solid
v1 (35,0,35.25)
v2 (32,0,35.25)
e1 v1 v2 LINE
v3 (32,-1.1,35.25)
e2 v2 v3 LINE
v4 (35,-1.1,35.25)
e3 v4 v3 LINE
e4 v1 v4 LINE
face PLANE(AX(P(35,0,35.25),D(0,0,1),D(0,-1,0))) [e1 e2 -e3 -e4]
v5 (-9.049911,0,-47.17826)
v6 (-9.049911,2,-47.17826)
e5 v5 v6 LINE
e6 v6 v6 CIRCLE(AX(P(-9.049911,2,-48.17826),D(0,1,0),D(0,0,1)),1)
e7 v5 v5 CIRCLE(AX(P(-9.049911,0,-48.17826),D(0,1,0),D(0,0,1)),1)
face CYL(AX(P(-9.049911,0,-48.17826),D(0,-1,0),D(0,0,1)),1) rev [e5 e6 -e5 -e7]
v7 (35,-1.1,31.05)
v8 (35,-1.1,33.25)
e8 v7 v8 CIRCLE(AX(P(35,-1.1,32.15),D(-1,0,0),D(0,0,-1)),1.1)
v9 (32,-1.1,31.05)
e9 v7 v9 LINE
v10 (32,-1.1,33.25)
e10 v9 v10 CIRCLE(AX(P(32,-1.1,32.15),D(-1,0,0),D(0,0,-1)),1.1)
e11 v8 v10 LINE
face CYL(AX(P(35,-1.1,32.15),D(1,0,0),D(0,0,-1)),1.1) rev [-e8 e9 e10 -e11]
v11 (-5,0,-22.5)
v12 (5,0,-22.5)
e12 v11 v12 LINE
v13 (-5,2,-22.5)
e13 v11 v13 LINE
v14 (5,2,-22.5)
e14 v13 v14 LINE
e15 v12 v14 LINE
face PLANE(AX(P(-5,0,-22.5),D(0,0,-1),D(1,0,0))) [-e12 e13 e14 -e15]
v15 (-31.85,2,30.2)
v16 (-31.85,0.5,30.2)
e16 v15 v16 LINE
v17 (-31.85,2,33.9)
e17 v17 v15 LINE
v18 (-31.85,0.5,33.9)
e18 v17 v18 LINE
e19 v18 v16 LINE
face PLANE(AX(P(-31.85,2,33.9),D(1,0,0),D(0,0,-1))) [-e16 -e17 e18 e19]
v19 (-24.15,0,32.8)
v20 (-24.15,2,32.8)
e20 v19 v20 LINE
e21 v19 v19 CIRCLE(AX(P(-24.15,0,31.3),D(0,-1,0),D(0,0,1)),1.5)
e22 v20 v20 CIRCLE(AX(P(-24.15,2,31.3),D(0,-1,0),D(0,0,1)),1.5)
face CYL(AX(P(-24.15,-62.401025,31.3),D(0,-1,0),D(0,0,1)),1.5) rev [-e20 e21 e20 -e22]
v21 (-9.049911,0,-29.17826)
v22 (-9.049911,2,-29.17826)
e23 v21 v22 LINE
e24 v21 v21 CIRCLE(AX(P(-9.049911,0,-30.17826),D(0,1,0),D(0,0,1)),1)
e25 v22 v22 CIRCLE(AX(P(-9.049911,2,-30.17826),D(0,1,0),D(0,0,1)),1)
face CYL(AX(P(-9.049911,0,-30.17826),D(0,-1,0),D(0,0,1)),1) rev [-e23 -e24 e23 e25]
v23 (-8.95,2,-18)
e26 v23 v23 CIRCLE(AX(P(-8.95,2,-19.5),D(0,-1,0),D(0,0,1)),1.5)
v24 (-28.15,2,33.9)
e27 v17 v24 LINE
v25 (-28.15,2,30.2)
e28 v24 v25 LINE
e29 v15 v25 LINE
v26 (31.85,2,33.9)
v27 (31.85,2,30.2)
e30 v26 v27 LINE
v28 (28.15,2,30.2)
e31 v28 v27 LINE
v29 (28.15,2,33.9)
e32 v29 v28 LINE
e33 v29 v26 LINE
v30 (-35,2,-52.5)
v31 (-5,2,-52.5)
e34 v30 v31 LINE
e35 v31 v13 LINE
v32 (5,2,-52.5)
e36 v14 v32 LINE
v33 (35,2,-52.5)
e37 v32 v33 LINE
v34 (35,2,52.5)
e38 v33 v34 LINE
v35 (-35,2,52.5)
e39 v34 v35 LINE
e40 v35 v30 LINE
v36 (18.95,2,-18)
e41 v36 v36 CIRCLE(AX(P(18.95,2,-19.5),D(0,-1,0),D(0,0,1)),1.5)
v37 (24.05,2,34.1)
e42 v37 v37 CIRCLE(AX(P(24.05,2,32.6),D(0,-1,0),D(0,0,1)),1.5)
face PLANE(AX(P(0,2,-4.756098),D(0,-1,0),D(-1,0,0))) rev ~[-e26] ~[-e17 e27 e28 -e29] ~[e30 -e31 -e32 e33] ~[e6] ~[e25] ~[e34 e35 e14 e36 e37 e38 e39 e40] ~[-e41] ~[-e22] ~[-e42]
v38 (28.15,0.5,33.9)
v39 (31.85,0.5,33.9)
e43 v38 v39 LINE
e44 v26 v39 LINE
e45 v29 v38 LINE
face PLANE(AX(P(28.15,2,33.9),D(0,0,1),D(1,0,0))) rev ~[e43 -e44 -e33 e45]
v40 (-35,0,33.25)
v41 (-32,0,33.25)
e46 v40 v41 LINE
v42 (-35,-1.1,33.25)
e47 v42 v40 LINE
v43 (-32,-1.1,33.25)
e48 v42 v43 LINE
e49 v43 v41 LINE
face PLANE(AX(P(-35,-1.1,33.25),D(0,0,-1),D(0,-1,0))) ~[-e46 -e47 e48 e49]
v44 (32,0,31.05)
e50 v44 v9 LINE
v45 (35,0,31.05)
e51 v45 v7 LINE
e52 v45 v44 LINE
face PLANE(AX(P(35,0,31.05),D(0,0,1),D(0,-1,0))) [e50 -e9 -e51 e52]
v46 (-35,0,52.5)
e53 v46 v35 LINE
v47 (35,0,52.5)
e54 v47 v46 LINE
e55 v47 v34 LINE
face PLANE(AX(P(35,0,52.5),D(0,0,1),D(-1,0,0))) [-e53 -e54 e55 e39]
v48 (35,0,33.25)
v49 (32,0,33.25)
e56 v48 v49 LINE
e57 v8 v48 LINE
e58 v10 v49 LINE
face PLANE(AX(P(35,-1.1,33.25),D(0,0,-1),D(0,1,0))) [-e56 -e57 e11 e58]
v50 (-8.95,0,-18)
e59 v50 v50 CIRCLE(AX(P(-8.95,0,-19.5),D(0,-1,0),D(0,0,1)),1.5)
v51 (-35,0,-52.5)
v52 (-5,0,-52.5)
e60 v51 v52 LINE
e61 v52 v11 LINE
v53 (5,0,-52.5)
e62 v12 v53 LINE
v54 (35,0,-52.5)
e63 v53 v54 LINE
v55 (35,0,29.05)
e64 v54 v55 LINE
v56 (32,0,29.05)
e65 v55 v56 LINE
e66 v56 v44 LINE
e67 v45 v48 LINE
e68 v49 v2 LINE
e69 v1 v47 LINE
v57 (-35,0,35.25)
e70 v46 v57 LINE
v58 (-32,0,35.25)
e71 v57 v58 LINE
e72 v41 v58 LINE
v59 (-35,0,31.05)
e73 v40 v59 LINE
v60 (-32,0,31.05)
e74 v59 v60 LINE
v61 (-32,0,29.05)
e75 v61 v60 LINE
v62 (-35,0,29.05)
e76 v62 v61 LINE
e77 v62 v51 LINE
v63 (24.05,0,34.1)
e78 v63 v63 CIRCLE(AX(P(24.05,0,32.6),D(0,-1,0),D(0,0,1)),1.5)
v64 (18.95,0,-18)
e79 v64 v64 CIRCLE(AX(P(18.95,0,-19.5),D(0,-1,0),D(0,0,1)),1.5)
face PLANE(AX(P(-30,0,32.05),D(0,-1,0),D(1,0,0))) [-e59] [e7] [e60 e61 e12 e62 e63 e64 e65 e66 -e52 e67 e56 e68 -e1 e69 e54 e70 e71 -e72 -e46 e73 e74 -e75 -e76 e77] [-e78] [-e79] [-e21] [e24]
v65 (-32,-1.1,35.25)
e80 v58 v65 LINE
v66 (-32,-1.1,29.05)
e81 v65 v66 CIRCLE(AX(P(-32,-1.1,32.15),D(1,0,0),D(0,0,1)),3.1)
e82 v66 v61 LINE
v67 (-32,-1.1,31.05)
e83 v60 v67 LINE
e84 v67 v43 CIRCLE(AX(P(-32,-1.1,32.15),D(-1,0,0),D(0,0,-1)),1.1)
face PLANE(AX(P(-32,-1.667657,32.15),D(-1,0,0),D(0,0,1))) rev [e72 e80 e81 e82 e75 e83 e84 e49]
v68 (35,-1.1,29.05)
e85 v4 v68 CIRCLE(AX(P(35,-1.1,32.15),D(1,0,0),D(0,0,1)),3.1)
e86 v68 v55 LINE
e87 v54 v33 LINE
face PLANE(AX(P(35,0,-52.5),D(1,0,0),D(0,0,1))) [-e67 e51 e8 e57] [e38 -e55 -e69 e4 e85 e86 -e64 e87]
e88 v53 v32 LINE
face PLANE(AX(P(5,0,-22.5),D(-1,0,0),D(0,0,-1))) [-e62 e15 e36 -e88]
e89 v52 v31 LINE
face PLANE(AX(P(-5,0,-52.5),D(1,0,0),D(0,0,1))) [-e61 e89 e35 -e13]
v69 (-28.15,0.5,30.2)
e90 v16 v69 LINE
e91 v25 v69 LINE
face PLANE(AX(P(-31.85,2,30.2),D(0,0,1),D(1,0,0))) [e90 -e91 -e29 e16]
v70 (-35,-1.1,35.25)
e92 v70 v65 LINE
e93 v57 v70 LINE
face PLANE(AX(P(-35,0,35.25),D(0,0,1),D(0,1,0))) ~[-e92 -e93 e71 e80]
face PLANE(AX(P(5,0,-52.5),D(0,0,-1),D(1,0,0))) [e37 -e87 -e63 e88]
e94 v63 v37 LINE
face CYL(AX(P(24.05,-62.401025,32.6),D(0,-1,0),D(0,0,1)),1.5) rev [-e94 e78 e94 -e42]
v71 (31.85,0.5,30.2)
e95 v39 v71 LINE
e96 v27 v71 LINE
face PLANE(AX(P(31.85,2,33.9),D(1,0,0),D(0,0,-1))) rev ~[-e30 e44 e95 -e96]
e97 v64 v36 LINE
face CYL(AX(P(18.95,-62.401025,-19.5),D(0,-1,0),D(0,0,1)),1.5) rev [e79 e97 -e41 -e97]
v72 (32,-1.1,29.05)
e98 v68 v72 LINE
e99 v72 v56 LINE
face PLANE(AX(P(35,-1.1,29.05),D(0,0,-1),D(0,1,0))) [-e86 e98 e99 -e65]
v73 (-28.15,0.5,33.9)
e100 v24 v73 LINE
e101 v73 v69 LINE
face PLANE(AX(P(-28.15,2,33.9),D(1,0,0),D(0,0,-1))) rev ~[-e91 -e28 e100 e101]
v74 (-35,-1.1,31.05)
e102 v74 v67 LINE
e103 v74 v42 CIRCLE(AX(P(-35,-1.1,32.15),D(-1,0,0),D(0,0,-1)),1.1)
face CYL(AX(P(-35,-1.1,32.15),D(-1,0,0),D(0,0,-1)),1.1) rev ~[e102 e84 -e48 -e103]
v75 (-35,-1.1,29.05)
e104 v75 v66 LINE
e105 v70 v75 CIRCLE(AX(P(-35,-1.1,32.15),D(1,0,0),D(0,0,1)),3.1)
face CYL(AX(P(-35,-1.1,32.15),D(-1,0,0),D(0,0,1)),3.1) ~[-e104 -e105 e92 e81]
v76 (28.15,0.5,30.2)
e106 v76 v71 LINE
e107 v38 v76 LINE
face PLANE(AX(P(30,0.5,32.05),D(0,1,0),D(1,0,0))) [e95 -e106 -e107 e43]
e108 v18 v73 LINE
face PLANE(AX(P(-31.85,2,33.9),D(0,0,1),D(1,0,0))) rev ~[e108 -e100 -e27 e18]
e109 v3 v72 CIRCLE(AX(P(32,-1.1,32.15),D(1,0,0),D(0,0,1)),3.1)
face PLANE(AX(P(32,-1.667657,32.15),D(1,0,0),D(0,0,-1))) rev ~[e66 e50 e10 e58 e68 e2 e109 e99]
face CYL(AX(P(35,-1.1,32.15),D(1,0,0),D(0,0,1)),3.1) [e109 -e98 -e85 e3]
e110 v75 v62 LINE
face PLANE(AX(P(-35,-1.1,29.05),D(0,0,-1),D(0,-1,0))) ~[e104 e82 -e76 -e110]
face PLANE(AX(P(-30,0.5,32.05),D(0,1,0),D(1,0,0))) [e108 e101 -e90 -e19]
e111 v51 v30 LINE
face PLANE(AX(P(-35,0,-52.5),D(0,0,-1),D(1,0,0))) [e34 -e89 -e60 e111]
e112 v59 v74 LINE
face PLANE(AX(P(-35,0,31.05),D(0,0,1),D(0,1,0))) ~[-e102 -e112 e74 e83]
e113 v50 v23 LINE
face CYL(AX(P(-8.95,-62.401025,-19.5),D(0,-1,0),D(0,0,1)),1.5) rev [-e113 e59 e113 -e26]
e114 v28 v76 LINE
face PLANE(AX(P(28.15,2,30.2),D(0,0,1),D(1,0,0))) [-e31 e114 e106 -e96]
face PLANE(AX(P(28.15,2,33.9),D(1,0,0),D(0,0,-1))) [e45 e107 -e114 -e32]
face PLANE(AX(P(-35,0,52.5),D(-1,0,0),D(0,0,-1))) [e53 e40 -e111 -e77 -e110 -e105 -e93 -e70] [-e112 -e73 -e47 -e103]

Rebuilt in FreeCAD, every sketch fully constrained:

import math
import FreeCAD as App
import Part
import Sketcher

V = App.Vector

doc = App.newDocument("Part")
params = doc.addObject("Spreadsheet::Sheet", "Params")
for row, (alias, value) in enumerate([
    ("sketch1_diameter", "2 mm"),
    ("sketch1_width", "30 mm"),
    ("sketch1_width2", "70 mm"),
    ("sketch1_height", "105 mm"),
    ("sketch1_width3", "3.1 mm"),
    ("pad1_length", "2 mm"),
    ("sketch2_radius", "3.1 mm"),
    ("sketch2_radius2", "1.1 mm"),
    ("sketch2_width", "1.1 mm"),
    ("pad2_length", "3 mm"),
    ("sketch3_width", "3.1 mm"),
    ("pad3_length", "0.5 mm"),
    ("sketch4_width", "3.7 mm"),
    ("pocket1_length", "1.5 mm"),
    ("sketch5_diameter", "3 mm"),
], start=1):
    params.set(f"A{row}", alias)
    params.set(f"B{row}", "=" + value)
    params.setAlias(f"B{row}", alias)

body = doc.addObject("PartDesign::Body", "Body")

sketch1 = body.newObject("Sketcher::SketchObject", "Sketch")
sketch1.AttachmentSupport = (doc.getObject("XZ_Plane"), [""])
sketch1.MapMode = "FlatFace"
sketch1.addGeometry(Part.LineSegment(V(-5, -22.5, 0), V(-5, -52.5, 0)), False)
sketch1.addGeometry(Part.LineSegment(V(-5, -52.5, 0), V(-35, -52.5, 0)), False)
sketch1.addGeometry(Part.LineSegment(V(-35, -52.5, 0), V(-35, 52.5, 0)), False)
sketch1.addGeometry(Part.LineSegment(V(-35, 52.5, 0), V(35, 52.5, 0)), False)
sketch1.addGeometry(Part.LineSegment(V(35, 52.5, 0), V(35, -52.5, 0)), False)
sketch1.addGeometry(Part.LineSegment(V(35, -52.5, 0), V(5, -52.5, 0)), False)
sketch1.addGeometry(Part.LineSegment(V(5, -52.5, 0), V(5, -22.5, 0)), False)
sketch1.addGeometry(Part.LineSegment(V(5, -22.5, 0), V(-5, -22.5, 0)), False)
sketch1.addGeometry(Part.LineSegment(V(28.4, 33.6, 0), V(28.4, 30.5, 0)), False)
sketch1.addGeometry(Part.LineSegment(V(28.4, 30.5, 0), V(31.6, 30.5, 0)), False)
sketch1.addGeometry(Part.LineSegment(V(31.6, 30.5, 0), V(31.6, 33.6, 0)), False)
sketch1.addGeometry(Part.LineSegment(V(31.6, 33.6, 0), V(28.4, 33.6, 0)), False)
sketch1.addGeometry(Part.LineSegment(V(-31.6, 33.6, 0), V(-31.6, 30.5, 0)), False)
sketch1.addGeometry(Part.LineSegment(V(-31.6, 30.5, 0), V(-28.4, 30.5, 0)), False)
sketch1.addGeometry(Part.LineSegment(V(-28.4, 30.5, 0), V(-28.4, 33.6, 0)), False)
sketch1.addGeometry(Part.LineSegment(V(-28.4, 33.6, 0), V(-31.6, 33.6, 0)), False)
sketch1.addGeometry(Part.Circle(V(-9, -30.2, 0), V(0, 0, 1), 1), False)
sketch1.addGeometry(Part.Circle(V(-9, -48.2, 0), V(0, 0, 1), 1), False)
sketch1.addConstraint(Sketcher.Constraint("Coincident", 0, 2, 1, 1))
sketch1.addConstraint(Sketcher.Constraint("Coincident", 1, 2, 2, 1))
sketch1.addConstraint(Sketcher.Constraint("Coincident", 2, 2, 3, 1))
sketch1.addConstraint(Sketcher.Constraint("Coincident", 3, 2, 4, 1))
sketch1.addConstraint(Sketcher.Constraint("Coincident", 4, 2, 5, 1))
sketch1.addConstraint(Sketcher.Constraint("Coincident", 5, 2, 6, 1))
sketch1.addConstraint(Sketcher.Constraint("Coincident", 6, 2, 7, 1))
sketch1.addConstraint(Sketcher.Constraint("Coincident", 7, 2, 0, 1))
sketch1.addConstraint(Sketcher.Constraint("Coincident", 8, 2, 9, 1))
sketch1.addConstraint(Sketcher.Constraint("Coincident", 9, 2, 10, 1))
sketch1.addConstraint(Sketcher.Constraint("Coincident", 10, 2, 11, 1))
sketch1.addConstraint(Sketcher.Constraint("Coincident", 11, 2, 8, 1))
sketch1.addConstraint(Sketcher.Constraint("Coincident", 12, 2, 13, 1))
sketch1.addConstraint(Sketcher.Constraint("Coincident", 13, 2, 14, 1))
sketch1.addConstraint(Sketcher.Constraint("Coincident", 14, 2, 15, 1))
sketch1.addConstraint(Sketcher.Constraint("Coincident", 15, 2, 12, 1))
sketch1.addConstraint(Sketcher.Constraint("Vertical", 0))
sketch1.addConstraint(Sketcher.Constraint("Horizontal", 1))
sketch1.addConstraint(Sketcher.Constraint("Vertical", 2))
sketch1.addConstraint(Sketcher.Constraint("Horizontal", 3))
sketch1.addConstraint(Sketcher.Constraint("Vertical", 4))
sketch1.addConstraint(Sketcher.Constraint("Horizontal", 5))
sketch1.addConstraint(Sketcher.Constraint("Vertical", 6))
sketch1.addConstraint(Sketcher.Constraint("Horizontal", 7))
sketch1.addConstraint(Sketcher.Constraint("Vertical", 8))
sketch1.addConstraint(Sketcher.Constraint("Horizontal", 9))
sketch1.addConstraint(Sketcher.Constraint("Vertical", 10))
sketch1.addConstraint(Sketcher.Constraint("Horizontal", 11))
sketch1.addConstraint(Sketcher.Constraint("Vertical", 12))
sketch1.addConstraint(Sketcher.Constraint("Horizontal", 13))
sketch1.addConstraint(Sketcher.Constraint("Vertical", 14))
sketch1.addConstraint(Sketcher.Constraint("Horizontal", 15))
sketch1.addConstraint(Sketcher.Constraint("Equal", 16, 17))
sketch1.addConstraint(Sketcher.Constraint("Symmetric", 1, 2, 3, 2, -1, 1))
sketch1.addConstraint(Sketcher.Constraint("Symmetric", 0, 2, 5, 2, -2))
sketch1.addConstraint(Sketcher.Constraint("Symmetric", 9, 2, 12, 2, -2))
sketch1.addConstraint(Sketcher.Constraint("Symmetric", 11, 2, 14, 2, -2))
sketch1.addConstraint(Sketcher.Constraint("Vertical", 16, 3, 17, 3))
sketch1.addConstraint(Sketcher.Constraint("Equal", 5, 0))
sketch1.addConstraint(Sketcher.Constraint("Equal", 15, 8))
sketch1.addConstraint(Sketcher.Constraint("Diameter", 16, 2.0))
sketch1.addConstraint(Sketcher.Constraint("DistanceX", 1, 2, 1, 1, 30.0))
sketch1.addConstraint(Sketcher.Constraint("DistanceX", 3, 1, 3, 2, 70.0))
sketch1.addConstraint(Sketcher.Constraint("DistanceY", 2, 1, 2, 2, 105.0))
sketch1.addConstraint(Sketcher.Constraint("DistanceX", 9, 1, 9, 2, 3.1))
sketch1.addConstraint(Sketcher.Constraint("DistanceY", 17, 3, 16, 3, 18.0))
sketch1.addConstraint(Sketcher.Constraint("DistanceY", 8, 2, 3, 2, 22.0))
sketch1.addConstraint(Sketcher.Constraint("DistanceX", 12, 2, 8, 2, 60.0))
sketch1.addConstraint(Sketcher.Constraint("DistanceX", 16, 3, -1, 1, 9.049911))
sketch1.addConstraint(Sketcher.Constraint("DistanceY", 16, 3, -1, 1, 30.17826))
sketch1.setExpression("Constraints[40]", "Params.sketch1_diameter")
sketch1.setExpression("Constraints[41]", "Params.sketch1_width")
sketch1.setExpression("Constraints[42]", "Params.sketch1_width2")
sketch1.setExpression("Constraints[43]", "Params.sketch1_height")
sketch1.setExpression("Constraints[44]", "Params.sketch1_width3")
pad1 = body.newObject("PartDesign::Pad", "Pad")
pad1.Profile = sketch1
pad1.setExpression("Length", "Params.pad1_length")
pad1.Reversed = True

sketch2 = body.newObject("Sketcher::SketchObject", "Sketch001")
sketch2.AttachmentSupport = (doc.getObject("YZ_Plane"), [""])
sketch2.MapMode = "FlatFace"
sketch2.AttachmentOffset = App.Placement(V(0, 0, 35), App.Rotation())
sketch2.addGeometry(Part.LineSegment(V(0, 33.2, 0), V(0, 35.2, 0)), False)
sketch2.addGeometry(Part.LineSegment(V(0, 35.2, 0), V(-1.1, 35.2, 0)), False)
sketch2.addGeometry(Part.ArcOfCircle(Part.Circle(V(-1.1, 32.1, 0), V(0, 0, 1), 3.1), math.radians(90), math.radians(270)), False)
sketch2.addGeometry(Part.LineSegment(V(-1.1, 29.1, 0), V(0, 29.1, 0)), False)
sketch2.addGeometry(Part.LineSegment(V(0, 29.1, 0), V(0, 31.1, 0)), False)
sketch2.addGeometry(Part.LineSegment(V(0, 31.1, 0), V(-1.1, 31.1, 0)), False)
sketch2.addGeometry(Part.ArcOfCircle(Part.Circle(V(-1.1, 32.1, 0), V(0, 0, 1), 1.1), math.radians(90), math.radians(270)), False)
sketch2.addGeometry(Part.LineSegment(V(-1.1, 33.2, 0), V(0, 33.2, 0)), False)
sketch2.addConstraint(Sketcher.Constraint("Coincident", 0, 2, 1, 1))
sketch2.addConstraint(Sketcher.Constraint("Tangent", 1, 2, 2, 1))
sketch2.addConstraint(Sketcher.Constraint("Tangent", 2, 2, 3, 1))
sketch2.addConstraint(Sketcher.Constraint("Coincident", 3, 2, 4, 1))
sketch2.addConstraint(Sketcher.Constraint("Coincident", 4, 2, 5, 1))
sketch2.addConstraint(Sketcher.Constraint("Tangent", 5, 2, 6, 2))
sketch2.addConstraint(Sketcher.Constraint("Tangent", 6, 1, 7, 1))
sketch2.addConstraint(Sketcher.Constraint("Coincident", 7, 2, 0, 1))
sketch2.addConstraint(Sketcher.Constraint("Vertical", 0))
sketch2.addConstraint(Sketcher.Constraint("Horizontal", 1))
sketch2.addConstraint(Sketcher.Constraint("Horizontal", 3))
sketch2.addConstraint(Sketcher.Constraint("Vertical", 4))
sketch2.addConstraint(Sketcher.Constraint("Horizontal", 5))
sketch2.addConstraint(Sketcher.Constraint("Horizontal", 7))
sketch2.addConstraint(Sketcher.Constraint("Coincident", 6, 3, 2, 3))
sketch2.addConstraint(Sketcher.Constraint("PointOnObject", 0, 2, -2))
sketch2.addConstraint(Sketcher.Constraint("PointOnObject", 3, 2, -2))
sketch2.addConstraint(Sketcher.Constraint("Radius", 2, 3.1))
sketch2.addConstraint(Sketcher.Constraint("Radius", 6, 1.1))
sketch2.addConstraint(Sketcher.Constraint("DistanceX", 1, 2, 1, 1, 1.1))
sketch2.addConstraint(Sketcher.Constraint("DistanceY", -1, 1, 2, 3, 32.15))
sketch2.setExpression("Constraints[17]", "Params.sketch2_radius")
sketch2.setExpression("Constraints[18]", "Params.sketch2_radius2")
sketch2.setExpression("Constraints[19]", "Params.sketch2_width")
pad2 = body.newObject("PartDesign::Pad", "Pad001")
pad2.Profile = sketch2
pad2.setExpression("Length", "Params.pad2_length")
pad2.Reversed = True
doc.recompute()

mirrored = body.newObject("PartDesign::Mirrored", "Mirrored")
mirrored.Originals = [pad2]
mirrored.MirrorPlane = (doc.getObject("YZ_Plane"), [""])
body.Tip = mirrored

sketch3 = body.newObject("Sketcher::SketchObject", "Sketch002")
sketch3.AttachmentSupport = (doc.getObject("XZ_Plane"), [""])
sketch3.MapMode = "FlatFace"
sketch3.addGeometry(Part.LineSegment(V(-31.6, 33.6, 0), V(-31.6, 30.5, 0)), False)
sketch3.addGeometry(Part.LineSegment(V(-31.6, 30.5, 0), V(-28.4, 30.5, 0)), False)
sketch3.addGeometry(Part.LineSegment(V(-28.4, 30.5, 0), V(-28.4, 33.6, 0)), False)
sketch3.addGeometry(Part.LineSegment(V(-28.4, 33.6, 0), V(-31.6, 33.6, 0)), False)
sketch3.addGeometry(Part.LineSegment(V(28.4, 33.6, 0), V(28.4, 30.5, 0)), False)
sketch3.addGeometry(Part.LineSegment(V(28.4, 30.5, 0), V(31.6, 30.5, 0)), False)
sketch3.addGeometry(Part.LineSegment(V(31.6, 30.5, 0), V(31.6, 33.6, 0)), False)
sketch3.addGeometry(Part.LineSegment(V(31.6, 33.6, 0), V(28.4, 33.6, 0)), False)
sketch3.addConstraint(Sketcher.Constraint("Coincident", 0, 2, 1, 1))
sketch3.addConstraint(Sketcher.Constraint("Coincident", 1, 2, 2, 1))
sketch3.addConstraint(Sketcher.Constraint("Coincident", 2, 2, 3, 1))
sketch3.addConstraint(Sketcher.Constraint("Coincident", 3, 2, 0, 1))
sketch3.addConstraint(Sketcher.Constraint("Coincident", 4, 2, 5, 1))
sketch3.addConstraint(Sketcher.Constraint("Coincident", 5, 2, 6, 1))
sketch3.addConstraint(Sketcher.Constraint("Coincident", 6, 2, 7, 1))
sketch3.addConstraint(Sketcher.Constraint("Coincident", 7, 2, 4, 1))
sketch3.addConstraint(Sketcher.Constraint("Vertical", 0))
sketch3.addConstraint(Sketcher.Constraint("Horizontal", 1))
sketch3.addConstraint(Sketcher.Constraint("Vertical", 2))
sketch3.addConstraint(Sketcher.Constraint("Horizontal", 3))
sketch3.addConstraint(Sketcher.Constraint("Vertical", 4))
sketch3.addConstraint(Sketcher.Constraint("Horizontal", 5))
sketch3.addConstraint(Sketcher.Constraint("Vertical", 6))
sketch3.addConstraint(Sketcher.Constraint("Horizontal", 7))
sketch3.addConstraint(Sketcher.Constraint("Symmetric", 1, 2, 4, 2, -2))
sketch3.addConstraint(Sketcher.Constraint("Symmetric", 3, 2, 6, 2, -2))
sketch3.addConstraint(Sketcher.Constraint("Equal", 7, 0))
sketch3.addConstraint(Sketcher.Constraint("DistanceX", 1, 1, 1, 2, 3.1))
sketch3.addConstraint(Sketcher.Constraint("DistanceX", 0, 2, 4, 2, 60.0))
sketch3.addConstraint(Sketcher.Constraint("DistanceY", -1, 1, 0, 2, 30.5))
sketch3.setExpression("Constraints[19]", "Params.sketch3_width")
pad3 = body.newObject("PartDesign::Pad", "Pad002")
pad3.Profile = sketch3
pad3.setExpression("Length", "Params.pad3_length")
pad3.Reversed = True

sketch4 = body.newObject("Sketcher::SketchObject", "Sketch003")
sketch4.AttachmentSupport = (doc.getObject("XZ_Plane"), [""])
sketch4.MapMode = "FlatFace"
sketch4.AttachmentOffset = App.Placement(V(0, 0, -2), App.Rotation())
sketch4.addGeometry(Part.LineSegment(V(-31.9, 30.2, 0), V(-31.9, 33.9, 0)), False)
sketch4.addGeometry(Part.LineSegment(V(-31.9, 33.9, 0), V(-28.1, 33.9, 0)), False)
sketch4.addGeometry(Part.LineSegment(V(-28.1, 33.9, 0), V(-28.1, 30.2, 0)), False)
sketch4.addGeometry(Part.LineSegment(V(-28.1, 30.2, 0), V(-31.9, 30.2, 0)), False)
sketch4.addGeometry(Part.LineSegment(V(28.1, 30.2, 0), V(28.1, 33.9, 0)), False)
sketch4.addGeometry(Part.LineSegment(V(28.1, 33.9, 0), V(31.9, 33.9, 0)), False)
sketch4.addGeometry(Part.LineSegment(V(31.9, 33.9, 0), V(31.9, 30.2, 0)), False)
sketch4.addGeometry(Part.LineSegment(V(31.9, 30.2, 0), V(28.1, 30.2, 0)), False)
sketch4.addConstraint(Sketcher.Constraint("Coincident", 0, 2, 1, 1))
sketch4.addConstraint(Sketcher.Constraint("Coincident", 1, 2, 2, 1))
sketch4.addConstraint(Sketcher.Constraint("Coincident", 2, 2, 3, 1))
sketch4.addConstraint(Sketcher.Constraint("Coincident", 3, 2, 0, 1))
sketch4.addConstraint(Sketcher.Constraint("Coincident", 4, 2, 5, 1))
sketch4.addConstraint(Sketcher.Constraint("Coincident", 5, 2, 6, 1))
sketch4.addConstraint(Sketcher.Constraint("Coincident", 6, 2, 7, 1))
sketch4.addConstraint(Sketcher.Constraint("Coincident", 7, 2, 4, 1))
sketch4.addConstraint(Sketcher.Constraint("Vertical", 0))
sketch4.addConstraint(Sketcher.Constraint("Horizontal", 1))
sketch4.addConstraint(Sketcher.Constraint("Vertical", 2))
sketch4.addConstraint(Sketcher.Constraint("Horizontal", 3))
sketch4.addConstraint(Sketcher.Constraint("Vertical", 4))
sketch4.addConstraint(Sketcher.Constraint("Horizontal", 5))
sketch4.addConstraint(Sketcher.Constraint("Vertical", 6))
sketch4.addConstraint(Sketcher.Constraint("Horizontal", 7))
sketch4.addConstraint(Sketcher.Constraint("Symmetric", 1, 2, 4, 2, -2))
sketch4.addConstraint(Sketcher.Constraint("Symmetric", 3, 2, 6, 2, -2))
sketch4.addConstraint(Sketcher.Constraint("Equal", 7, 0))
sketch4.addConstraint(Sketcher.Constraint("DistanceX", 1, 1, 1, 2, 3.7))
sketch4.addConstraint(Sketcher.Constraint("DistanceX", 0, 2, 4, 2, 60.0))
sketch4.addConstraint(Sketcher.Constraint("DistanceY", -1, 1, 0, 2, 33.9))
sketch4.setExpression("Constraints[19]", "Params.sketch4_width")
pocket1 = body.newObject("PartDesign::Pocket", "Pocket")
pocket1.Profile = sketch4
pocket1.setExpression("Length", "Params.pocket1_length")
pocket1.Reversed = True

sketch5 = body.newObject("Sketcher::SketchObject", "Sketch004")
sketch5.AttachmentSupport = (doc.getObject("XZ_Plane"), [""])
sketch5.MapMode = "FlatFace"
sketch5.AttachmentOffset = App.Placement(V(0, 0, -2), App.Rotation())
sketch5.addGeometry(Part.Circle(V(-8.9, -19.5, 0), V(0, 0, 1), 1.5), False)
sketch5.addGeometry(Part.Circle(V(18.9, -19.5, 0), V(0, 0, 1), 1.5), False)
sketch5.addGeometry(Part.Circle(V(24.1, 32.6, 0), V(0, 0, 1), 1.5), False)
sketch5.addGeometry(Part.Circle(V(-24.1, 31.3, 0), V(0, 0, 1), 1.5), False)
sketch5.addConstraint(Sketcher.Constraint("Equal", 0, 1))
sketch5.addConstraint(Sketcher.Constraint("Equal", 1, 2))
sketch5.addConstraint(Sketcher.Constraint("Equal", 2, 3))
sketch5.addConstraint(Sketcher.Constraint("Horizontal", 0, 3, 1, 3))
sketch5.addConstraint(Sketcher.Constraint("Diameter", 0, 3.0))
sketch5.addConstraint(Sketcher.Constraint("DistanceX", 0, 3, 2, 3, 33.0))
sketch5.addConstraint(Sketcher.Constraint("DistanceY", 0, 3, -1, 1, 19.5))
sketch5.addConstraint(Sketcher.Constraint("DistanceY", -1, 1, 2, 3, 32.6))
sketch5.addConstraint(Sketcher.Constraint("DistanceY", -1, 1, 3, 3, 31.3))
sketch5.addConstraint(Sketcher.Constraint("DistanceX", 0, 3, 1, 3, 27.9))
sketch5.addConstraint(Sketcher.Constraint("DistanceX", 3, 3, 2, 3, 48.2))
sketch5.addConstraint(Sketcher.Constraint("DistanceX", 0, 3, -1, 1, 8.95))
sketch5.setExpression("Constraints[4]", "Params.sketch5_diameter")
pocket2 = body.newObject("PartDesign::Pocket", "Pocket001")
pocket2.Profile = sketch5
pocket2.Type = "ThroughAll"
pocket2.Midplane = True

doc.recompute()
